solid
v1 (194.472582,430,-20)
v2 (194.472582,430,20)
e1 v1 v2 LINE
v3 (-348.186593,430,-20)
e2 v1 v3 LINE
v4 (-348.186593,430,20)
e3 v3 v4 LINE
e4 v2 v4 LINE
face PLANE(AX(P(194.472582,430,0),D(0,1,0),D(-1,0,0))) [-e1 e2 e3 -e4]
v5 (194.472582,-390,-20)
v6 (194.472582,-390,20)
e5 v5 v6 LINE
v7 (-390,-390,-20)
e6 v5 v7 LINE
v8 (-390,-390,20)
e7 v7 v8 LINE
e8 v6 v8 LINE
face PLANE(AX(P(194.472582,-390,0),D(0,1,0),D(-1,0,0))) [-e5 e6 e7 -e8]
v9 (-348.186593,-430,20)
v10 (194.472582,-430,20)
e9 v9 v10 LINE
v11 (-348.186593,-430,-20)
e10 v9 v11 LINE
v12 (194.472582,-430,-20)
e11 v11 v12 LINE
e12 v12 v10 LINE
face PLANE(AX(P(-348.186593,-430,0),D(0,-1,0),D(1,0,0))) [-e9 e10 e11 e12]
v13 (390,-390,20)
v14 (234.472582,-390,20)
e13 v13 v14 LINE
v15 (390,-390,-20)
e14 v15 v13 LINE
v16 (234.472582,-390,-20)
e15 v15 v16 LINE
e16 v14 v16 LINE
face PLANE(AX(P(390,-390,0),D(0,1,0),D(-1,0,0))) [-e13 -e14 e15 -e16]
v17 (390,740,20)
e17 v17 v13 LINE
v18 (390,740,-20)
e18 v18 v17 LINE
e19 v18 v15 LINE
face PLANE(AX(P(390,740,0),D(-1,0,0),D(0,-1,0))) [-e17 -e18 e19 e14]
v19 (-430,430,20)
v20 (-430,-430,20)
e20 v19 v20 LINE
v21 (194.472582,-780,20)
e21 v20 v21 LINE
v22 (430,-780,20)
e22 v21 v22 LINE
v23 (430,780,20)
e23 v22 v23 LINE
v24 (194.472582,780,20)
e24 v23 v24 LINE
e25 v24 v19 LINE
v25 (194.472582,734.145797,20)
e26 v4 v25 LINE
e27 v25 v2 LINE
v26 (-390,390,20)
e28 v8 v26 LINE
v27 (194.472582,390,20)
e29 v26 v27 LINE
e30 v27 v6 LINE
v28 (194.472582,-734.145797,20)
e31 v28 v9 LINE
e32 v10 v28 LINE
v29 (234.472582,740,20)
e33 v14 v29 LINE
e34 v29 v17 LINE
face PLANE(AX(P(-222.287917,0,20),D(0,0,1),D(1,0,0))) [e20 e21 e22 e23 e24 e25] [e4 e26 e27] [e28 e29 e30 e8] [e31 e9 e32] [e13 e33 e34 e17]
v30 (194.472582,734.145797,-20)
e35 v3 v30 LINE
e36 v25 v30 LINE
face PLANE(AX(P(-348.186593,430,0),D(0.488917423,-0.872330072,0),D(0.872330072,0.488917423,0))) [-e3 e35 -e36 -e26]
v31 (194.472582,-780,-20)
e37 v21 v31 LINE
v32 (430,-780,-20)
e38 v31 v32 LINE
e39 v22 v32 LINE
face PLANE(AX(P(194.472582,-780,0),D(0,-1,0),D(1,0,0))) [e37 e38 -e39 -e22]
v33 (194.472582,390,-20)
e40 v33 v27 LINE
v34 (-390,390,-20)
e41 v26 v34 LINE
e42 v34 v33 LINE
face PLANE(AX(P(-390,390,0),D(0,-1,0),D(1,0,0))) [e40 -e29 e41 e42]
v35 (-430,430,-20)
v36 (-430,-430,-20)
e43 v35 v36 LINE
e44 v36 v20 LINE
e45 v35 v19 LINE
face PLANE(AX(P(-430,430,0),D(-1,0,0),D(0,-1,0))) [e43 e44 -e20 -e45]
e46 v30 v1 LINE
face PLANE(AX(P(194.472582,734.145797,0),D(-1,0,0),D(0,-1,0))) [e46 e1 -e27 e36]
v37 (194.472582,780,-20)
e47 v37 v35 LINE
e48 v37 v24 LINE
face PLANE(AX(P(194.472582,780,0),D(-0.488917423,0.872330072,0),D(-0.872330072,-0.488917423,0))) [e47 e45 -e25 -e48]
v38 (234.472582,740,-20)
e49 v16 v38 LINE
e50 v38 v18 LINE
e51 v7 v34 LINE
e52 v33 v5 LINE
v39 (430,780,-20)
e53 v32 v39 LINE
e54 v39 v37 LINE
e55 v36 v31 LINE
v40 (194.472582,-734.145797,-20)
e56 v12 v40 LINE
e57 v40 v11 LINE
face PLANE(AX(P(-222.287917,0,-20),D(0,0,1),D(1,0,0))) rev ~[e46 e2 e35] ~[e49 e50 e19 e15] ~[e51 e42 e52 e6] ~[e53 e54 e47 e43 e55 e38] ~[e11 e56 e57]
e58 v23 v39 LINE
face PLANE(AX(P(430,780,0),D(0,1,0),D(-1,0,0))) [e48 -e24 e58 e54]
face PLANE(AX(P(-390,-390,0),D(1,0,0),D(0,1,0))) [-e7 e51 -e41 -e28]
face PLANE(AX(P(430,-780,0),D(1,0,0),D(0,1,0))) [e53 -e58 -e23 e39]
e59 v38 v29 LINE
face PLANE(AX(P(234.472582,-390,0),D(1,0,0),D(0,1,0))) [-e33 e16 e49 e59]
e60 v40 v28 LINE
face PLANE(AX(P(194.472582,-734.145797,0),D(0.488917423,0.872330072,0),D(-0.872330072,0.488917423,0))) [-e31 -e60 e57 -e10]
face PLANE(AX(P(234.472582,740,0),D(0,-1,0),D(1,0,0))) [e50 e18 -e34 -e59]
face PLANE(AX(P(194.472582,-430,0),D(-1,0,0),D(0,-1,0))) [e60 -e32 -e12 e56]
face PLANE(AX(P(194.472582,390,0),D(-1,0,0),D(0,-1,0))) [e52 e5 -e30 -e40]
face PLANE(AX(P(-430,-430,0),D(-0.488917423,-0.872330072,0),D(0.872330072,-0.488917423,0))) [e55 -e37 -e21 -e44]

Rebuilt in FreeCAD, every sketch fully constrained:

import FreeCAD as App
import Part
import Sketcher
Q = App.Units.Quantity

doc = App.newDocument("Part")
body = doc.addObject("PartDesign::Body", "Body")

# Sketch on XY plane
sketch1 = body.newObject("Sketcher::SketchObject", "Sketch")
sketch1.AttachmentSupport = (doc.getObject("XY_Plane"), [""])
sketch1.MapMode = "FlatFace"
sketch1.addGeometry([
    Part.LineSegment(App.Vector(430, 780, 0), App.Vector(194.472582, 780, 0)),  # 0
    Part.LineSegment(App.Vector(194.472582, 780, 0), App.Vector(-430, 430, 0)),  # 1
    Part.LineSegment(App.Vector(-430, 430, 0), App.Vector(-430, -430, 0)),  # 2
    Part.LineSegment(App.Vector(-430, -430, 0), App.Vector(194.472582, -780, 0)),  # 3
    Part.LineSegment(App.Vector(194.472582, -780, 0), App.Vector(430, -780, 0)),  # 4
    Part.LineSegment(App.Vector(430, -780, 0), App.Vector(430, 780, 0)),  # 5
    Part.LineSegment(App.Vector(-348.186593, -430, 0), App.Vector(194.472582, -430, 0)),  # 6
    Part.LineSegment(App.Vector(194.472582, -430, 0), App.Vector(194.472582, -734.145797, 0)),  # 7
    Part.LineSegment(App.Vector(194.472582, -734.145797, 0), App.Vector(-348.186593, -430, 0)),  # 8
    Part.LineSegment(App.Vector(-390, 390, 0), App.Vector(194.472582, 390, 0)),  # 9
    Part.LineSegment(App.Vector(194.472582, 390, 0), App.Vector(194.472582, -390, 0)),  # 10
    Part.LineSegment(App.Vector(194.472582, -390, 0), App.Vector(-390, -390, 0)),  # 11
    Part.LineSegment(App.Vector(-390, -390, 0), App.Vector(-390, 390, 0)),  # 12
    Part.LineSegment(App.Vector(194.472582, 734.145797, 0), App.Vector(194.472582, 430, 0)),  # 13
    Part.LineSegment(App.Vector(194.472582, 430, 0), App.Vector(-348.186593, 430, 0)),  # 14
    Part.LineSegment(App.Vector(-348.186593, 430, 0), App.Vector(194.472582, 734.145797, 0)),  # 15
    Part.LineSegment(App.Vector(234.472582, -390, 0), App.Vector(234.472582, 740, 0)),  # 16
    Part.LineSegment(App.Vector(234.472582, 740, 0), App.Vector(390, 740, 0)),  # 17
    Part.LineSegment(App.Vector(390, 740, 0), App.Vector(390, -390, 0)),  # 18
    Part.LineSegment(App.Vector(390, -390, 0), App.Vector(234.472582, -390, 0)),  # 19
], False)
sketch1.addConstraint([
    Sketcher.Constraint("Coincident", 0, 2, 1, 1),
    Sketcher.Constraint("Coincident", 1, 2, 2, 1),
    Sketcher.Constraint("Coincident", 2, 2, 3, 1),
    Sketcher.Constraint("Coincident", 3, 2, 4, 1),
    Sketcher.Constraint("Coincident", 4, 2, 5, 1),
    Sketcher.Constraint("Coincident", 5, 2, 0, 1),
    Sketcher.Constraint("Coincident", 6, 2, 7, 1),
    Sketcher.Constraint("Coincident", 7, 2, 8, 1),
    Sketcher.Constraint("Coincident", 8, 2, 6, 1),
    Sketcher.Constraint("Coincident", 9, 2, 10, 1),
    Sketcher.Constraint("Coincident", 10, 2, 11, 1),
    Sketcher.Constraint("Coincident", 11, 2, 12, 1),
    Sketcher.Constraint("Coincident", 12, 2, 9, 1),
    Sketcher.Constraint("Coincident", 13, 2, 14, 1),
    Sketcher.Constraint("Coincident", 14, 2, 15, 1),
    Sketcher.Constraint("Coincident", 15, 2, 13, 1),
    Sketcher.Constraint("Coincident", 16, 2, 17, 1),
    Sketcher.Constraint("Coincident", 17, 2, 18, 1),
    Sketcher.Constraint("Coincident", 18, 2, 19, 1),
    Sketcher.Constraint("Coincident", 19, 2, 16, 1),
    Sketcher.Constraint("Horizontal", 0),
    Sketcher.Constraint("Vertical", 2),
    Sketcher.Constraint("Horizontal", 4),
    Sketcher.Constraint("Vertical", 5),
    Sketcher.Constraint("Horizontal", 6),
    Sketcher.Constraint("Vertical", 7),
    Sketcher.Constraint("Horizontal", 9),
    Sketcher.Constraint("Vertical", 10),
    Sketcher.Constraint("Horizontal", 11),
    Sketcher.Constraint("Vertical", 12),
    Sketcher.Constraint("Vertical", 13),
    Sketcher.Constraint("Horizontal", 14),
    Sketcher.Constraint("Vertical", 16),
    Sketcher.Constraint("Horizontal", 17),
    Sketcher.Constraint("Vertical", 18),
    Sketcher.Constraint("Horizontal", 19),
    Sketcher.Constraint("Symmetric", 12, 2, 18, 2, -1, 1),
    Sketcher.Constraint("Symmetric", 0, 2, 3, 2, -1),
    Sketcher.Constraint("Symmetric", 6, 2, 13, 2, -1),
    Sketcher.Constraint("Parallel", 3, 8),
    Sketcher.Constraint("Parallel", 1, 15),
    Sketcher.Constraint("Horizontal", 2, 2, 6, 2),
    Sketcher.Constraint("Horizontal", 1, 2, 13, 2),
    Sketcher.Constraint("Horizontal", 11, 2, 18, 2),
    Sketcher.Constraint("Vertical", 3, 2, 6, 2),
    Sketcher.Constraint("Vertical", 7, 2, 9, 2),
    Sketcher.Constraint("Vertical", 8, 2, 14, 2),
    Sketcher.Constraint("DistanceY", 2, 2, 2, 1, Q("860 mm")),
    Sketcher.Constraint("DistanceY", 5, 1, 5, 2, Q("1560 mm")),
    Sketcher.Constraint("DistanceY", 10, 2, 10, 1, Q("780 mm")),
    Sketcher.Constraint("DistanceY", 16, 1, 16, 2, Q("1130 mm")),
    Sketcher.Constraint("DistanceX", 1, 2, -1, 1, Q("430 mm")),
    Sketcher.Constraint("DistanceX", -1, 1, 4, 2, Q("430 mm")),
    Sketcher.Constraint("DistanceX", 11, 2, -1, 1, Q("390 mm")),
    Sketcher.Constraint("DistanceX", 15, 2, 16, 2, Q("40 mm")),
    Sketcher.Constraint("DistanceX", 0, 2, 0, 1, Q("235.527418 mm")),
    Sketcher.Constraint("DistanceX", 6, 1, 6, 2, Q("542.659175 mm")),
])
pad1 = body.newObject("PartDesign::Pad", "Pad")
pad1.Profile = sketch1
pad1.Length = 40
pad1.Midplane = True

doc.recompute()
